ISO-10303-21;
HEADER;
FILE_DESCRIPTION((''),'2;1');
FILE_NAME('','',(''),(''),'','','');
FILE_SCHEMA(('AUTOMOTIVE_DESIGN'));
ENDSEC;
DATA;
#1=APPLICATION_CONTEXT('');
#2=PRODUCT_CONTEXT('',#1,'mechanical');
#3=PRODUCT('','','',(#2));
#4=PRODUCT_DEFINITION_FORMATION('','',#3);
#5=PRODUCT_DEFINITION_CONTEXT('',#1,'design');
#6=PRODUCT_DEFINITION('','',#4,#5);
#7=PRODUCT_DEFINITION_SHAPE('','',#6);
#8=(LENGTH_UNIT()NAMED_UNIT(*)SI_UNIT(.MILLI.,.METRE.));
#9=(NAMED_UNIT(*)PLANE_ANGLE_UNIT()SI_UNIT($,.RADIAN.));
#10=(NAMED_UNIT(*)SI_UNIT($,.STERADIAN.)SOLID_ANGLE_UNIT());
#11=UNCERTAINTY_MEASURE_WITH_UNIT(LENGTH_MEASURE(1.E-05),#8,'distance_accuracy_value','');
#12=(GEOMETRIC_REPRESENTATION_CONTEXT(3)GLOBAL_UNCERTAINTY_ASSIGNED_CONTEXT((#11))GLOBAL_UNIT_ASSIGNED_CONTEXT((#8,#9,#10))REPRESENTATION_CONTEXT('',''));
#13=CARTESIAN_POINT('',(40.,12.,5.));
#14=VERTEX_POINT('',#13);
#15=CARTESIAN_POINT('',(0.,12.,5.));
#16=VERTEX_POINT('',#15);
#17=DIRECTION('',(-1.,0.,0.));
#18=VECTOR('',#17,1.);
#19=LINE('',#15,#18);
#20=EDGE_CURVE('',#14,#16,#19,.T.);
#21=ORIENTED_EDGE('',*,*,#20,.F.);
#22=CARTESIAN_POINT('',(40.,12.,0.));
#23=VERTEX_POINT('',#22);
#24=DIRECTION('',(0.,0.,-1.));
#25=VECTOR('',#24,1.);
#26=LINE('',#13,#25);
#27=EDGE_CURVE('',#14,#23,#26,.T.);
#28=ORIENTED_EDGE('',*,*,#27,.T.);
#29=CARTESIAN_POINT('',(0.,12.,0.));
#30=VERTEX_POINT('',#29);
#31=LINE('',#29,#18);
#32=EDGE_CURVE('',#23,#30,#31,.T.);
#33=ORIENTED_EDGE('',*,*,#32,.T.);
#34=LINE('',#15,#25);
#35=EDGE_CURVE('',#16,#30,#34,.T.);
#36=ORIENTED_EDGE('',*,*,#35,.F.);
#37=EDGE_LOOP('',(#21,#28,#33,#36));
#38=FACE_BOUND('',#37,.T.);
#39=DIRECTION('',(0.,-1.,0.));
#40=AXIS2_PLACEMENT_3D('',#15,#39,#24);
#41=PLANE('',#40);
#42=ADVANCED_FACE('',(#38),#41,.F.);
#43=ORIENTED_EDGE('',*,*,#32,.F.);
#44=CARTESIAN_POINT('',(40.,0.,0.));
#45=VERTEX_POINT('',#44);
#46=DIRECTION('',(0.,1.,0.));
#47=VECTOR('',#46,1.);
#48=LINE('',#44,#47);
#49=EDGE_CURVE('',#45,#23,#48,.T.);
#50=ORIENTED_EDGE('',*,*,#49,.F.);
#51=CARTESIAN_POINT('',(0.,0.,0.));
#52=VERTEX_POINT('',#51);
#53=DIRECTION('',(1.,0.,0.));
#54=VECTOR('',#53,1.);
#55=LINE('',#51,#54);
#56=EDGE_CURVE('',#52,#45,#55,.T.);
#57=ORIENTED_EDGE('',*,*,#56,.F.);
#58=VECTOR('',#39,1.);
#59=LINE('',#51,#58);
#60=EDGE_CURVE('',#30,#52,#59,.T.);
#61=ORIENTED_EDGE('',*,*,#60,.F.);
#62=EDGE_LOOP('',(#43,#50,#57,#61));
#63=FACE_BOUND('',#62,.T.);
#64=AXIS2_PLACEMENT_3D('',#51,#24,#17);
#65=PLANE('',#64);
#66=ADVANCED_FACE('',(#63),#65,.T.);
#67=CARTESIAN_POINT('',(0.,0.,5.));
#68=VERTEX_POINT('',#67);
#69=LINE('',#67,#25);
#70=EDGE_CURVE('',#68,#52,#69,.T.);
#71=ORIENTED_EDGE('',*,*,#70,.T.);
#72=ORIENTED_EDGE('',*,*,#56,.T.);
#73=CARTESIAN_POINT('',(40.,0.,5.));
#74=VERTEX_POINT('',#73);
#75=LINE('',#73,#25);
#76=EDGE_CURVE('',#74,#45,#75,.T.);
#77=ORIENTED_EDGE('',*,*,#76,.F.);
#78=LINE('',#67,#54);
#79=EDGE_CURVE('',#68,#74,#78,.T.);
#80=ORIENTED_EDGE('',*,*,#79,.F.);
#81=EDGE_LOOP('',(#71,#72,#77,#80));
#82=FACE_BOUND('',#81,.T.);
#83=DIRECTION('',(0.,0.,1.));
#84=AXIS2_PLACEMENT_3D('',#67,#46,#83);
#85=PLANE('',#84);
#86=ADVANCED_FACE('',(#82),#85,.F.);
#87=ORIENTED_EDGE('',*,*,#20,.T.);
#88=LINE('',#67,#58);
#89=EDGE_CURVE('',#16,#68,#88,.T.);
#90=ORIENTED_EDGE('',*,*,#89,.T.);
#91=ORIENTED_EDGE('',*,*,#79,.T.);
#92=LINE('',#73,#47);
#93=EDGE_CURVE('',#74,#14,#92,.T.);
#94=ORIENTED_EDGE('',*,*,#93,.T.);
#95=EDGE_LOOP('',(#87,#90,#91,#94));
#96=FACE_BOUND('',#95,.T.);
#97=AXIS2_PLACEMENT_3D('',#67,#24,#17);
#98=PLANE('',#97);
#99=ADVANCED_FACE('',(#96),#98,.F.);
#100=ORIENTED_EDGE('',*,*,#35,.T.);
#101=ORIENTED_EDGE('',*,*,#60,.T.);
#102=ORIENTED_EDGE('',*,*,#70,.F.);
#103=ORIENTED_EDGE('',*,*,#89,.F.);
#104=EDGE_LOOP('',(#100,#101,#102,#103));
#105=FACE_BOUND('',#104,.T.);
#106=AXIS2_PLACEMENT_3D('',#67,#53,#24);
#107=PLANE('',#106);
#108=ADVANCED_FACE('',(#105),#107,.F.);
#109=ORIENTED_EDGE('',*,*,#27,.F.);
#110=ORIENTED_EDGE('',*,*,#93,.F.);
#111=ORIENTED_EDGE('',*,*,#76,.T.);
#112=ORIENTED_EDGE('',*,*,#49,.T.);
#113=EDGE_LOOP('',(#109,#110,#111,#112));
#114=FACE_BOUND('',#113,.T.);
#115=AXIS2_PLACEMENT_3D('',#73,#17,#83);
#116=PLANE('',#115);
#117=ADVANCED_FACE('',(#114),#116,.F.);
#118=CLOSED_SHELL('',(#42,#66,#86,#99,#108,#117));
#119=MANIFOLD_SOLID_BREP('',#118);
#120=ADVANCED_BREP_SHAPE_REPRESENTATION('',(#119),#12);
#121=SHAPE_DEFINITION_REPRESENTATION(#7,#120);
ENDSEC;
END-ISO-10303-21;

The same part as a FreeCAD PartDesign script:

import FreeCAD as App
import Part
import Sketcher

V = App.Vector
Q = App.Units.Quantity

doc = App.newDocument("Part")
body = doc.addObject("PartDesign::Body", "Body")

sketch1 = body.newObject("Sketcher::SketchObject", "Sketch")
sketch1.AttachmentSupport = (doc.getObject("XY_Plane"), [""])
sketch1.MapMode = "FlatFace"
sketch1.addGeometry(Part.LineSegment(V(0, 12, 0), V(0, 0, 0)), False)
sketch1.addGeometry(Part.LineSegment(V(0, 0, 0), V(40, 0, 0)), False)
sketch1.addGeometry(Part.LineSegment(V(40, 0, 0), V(40, 12, 0)), False)
sketch1.addGeometry(Part.LineSegment(V(40, 12, 0), V(0, 12, 0)), False)
sketch1.addConstraint(Sketcher.Constraint("Coincident", 0, 2, 1, 1))
sketch1.addConstraint(Sketcher.Constraint("Coincident", 1, 2, 2, 1))
sketch1.addConstraint(Sketcher.Constraint("Coincident", 2, 2, 3, 1))
sketch1.addConstraint(Sketcher.Constraint("Coincident", 3, 2, 0, 1))
sketch1.addConstraint(Sketcher.Constraint("Vertical", 0))
sketch1.addConstraint(Sketcher.Constraint("Horizontal", 1))
sketch1.addConstraint(Sketcher.Constraint("Vertical", 2))
sketch1.addConstraint(Sketcher.Constraint("Horizontal", 3))
sketch1.addConstraint(Sketcher.Constraint("Coincident", 0, 2, -1, 1))
sketch1.addConstraint(Sketcher.Constraint("DistanceX", 1, 1, 1, 2, Q("40 mm")))
sketch1.addConstraint(Sketcher.Constraint("DistanceY", 0, 2, 0, 1, Q("12 mm")))
pad1 = body.newObject("PartDesign::Pad", "Pad")
pad1.Profile = sketch1
pad1.Length = 5

doc.recompute()
